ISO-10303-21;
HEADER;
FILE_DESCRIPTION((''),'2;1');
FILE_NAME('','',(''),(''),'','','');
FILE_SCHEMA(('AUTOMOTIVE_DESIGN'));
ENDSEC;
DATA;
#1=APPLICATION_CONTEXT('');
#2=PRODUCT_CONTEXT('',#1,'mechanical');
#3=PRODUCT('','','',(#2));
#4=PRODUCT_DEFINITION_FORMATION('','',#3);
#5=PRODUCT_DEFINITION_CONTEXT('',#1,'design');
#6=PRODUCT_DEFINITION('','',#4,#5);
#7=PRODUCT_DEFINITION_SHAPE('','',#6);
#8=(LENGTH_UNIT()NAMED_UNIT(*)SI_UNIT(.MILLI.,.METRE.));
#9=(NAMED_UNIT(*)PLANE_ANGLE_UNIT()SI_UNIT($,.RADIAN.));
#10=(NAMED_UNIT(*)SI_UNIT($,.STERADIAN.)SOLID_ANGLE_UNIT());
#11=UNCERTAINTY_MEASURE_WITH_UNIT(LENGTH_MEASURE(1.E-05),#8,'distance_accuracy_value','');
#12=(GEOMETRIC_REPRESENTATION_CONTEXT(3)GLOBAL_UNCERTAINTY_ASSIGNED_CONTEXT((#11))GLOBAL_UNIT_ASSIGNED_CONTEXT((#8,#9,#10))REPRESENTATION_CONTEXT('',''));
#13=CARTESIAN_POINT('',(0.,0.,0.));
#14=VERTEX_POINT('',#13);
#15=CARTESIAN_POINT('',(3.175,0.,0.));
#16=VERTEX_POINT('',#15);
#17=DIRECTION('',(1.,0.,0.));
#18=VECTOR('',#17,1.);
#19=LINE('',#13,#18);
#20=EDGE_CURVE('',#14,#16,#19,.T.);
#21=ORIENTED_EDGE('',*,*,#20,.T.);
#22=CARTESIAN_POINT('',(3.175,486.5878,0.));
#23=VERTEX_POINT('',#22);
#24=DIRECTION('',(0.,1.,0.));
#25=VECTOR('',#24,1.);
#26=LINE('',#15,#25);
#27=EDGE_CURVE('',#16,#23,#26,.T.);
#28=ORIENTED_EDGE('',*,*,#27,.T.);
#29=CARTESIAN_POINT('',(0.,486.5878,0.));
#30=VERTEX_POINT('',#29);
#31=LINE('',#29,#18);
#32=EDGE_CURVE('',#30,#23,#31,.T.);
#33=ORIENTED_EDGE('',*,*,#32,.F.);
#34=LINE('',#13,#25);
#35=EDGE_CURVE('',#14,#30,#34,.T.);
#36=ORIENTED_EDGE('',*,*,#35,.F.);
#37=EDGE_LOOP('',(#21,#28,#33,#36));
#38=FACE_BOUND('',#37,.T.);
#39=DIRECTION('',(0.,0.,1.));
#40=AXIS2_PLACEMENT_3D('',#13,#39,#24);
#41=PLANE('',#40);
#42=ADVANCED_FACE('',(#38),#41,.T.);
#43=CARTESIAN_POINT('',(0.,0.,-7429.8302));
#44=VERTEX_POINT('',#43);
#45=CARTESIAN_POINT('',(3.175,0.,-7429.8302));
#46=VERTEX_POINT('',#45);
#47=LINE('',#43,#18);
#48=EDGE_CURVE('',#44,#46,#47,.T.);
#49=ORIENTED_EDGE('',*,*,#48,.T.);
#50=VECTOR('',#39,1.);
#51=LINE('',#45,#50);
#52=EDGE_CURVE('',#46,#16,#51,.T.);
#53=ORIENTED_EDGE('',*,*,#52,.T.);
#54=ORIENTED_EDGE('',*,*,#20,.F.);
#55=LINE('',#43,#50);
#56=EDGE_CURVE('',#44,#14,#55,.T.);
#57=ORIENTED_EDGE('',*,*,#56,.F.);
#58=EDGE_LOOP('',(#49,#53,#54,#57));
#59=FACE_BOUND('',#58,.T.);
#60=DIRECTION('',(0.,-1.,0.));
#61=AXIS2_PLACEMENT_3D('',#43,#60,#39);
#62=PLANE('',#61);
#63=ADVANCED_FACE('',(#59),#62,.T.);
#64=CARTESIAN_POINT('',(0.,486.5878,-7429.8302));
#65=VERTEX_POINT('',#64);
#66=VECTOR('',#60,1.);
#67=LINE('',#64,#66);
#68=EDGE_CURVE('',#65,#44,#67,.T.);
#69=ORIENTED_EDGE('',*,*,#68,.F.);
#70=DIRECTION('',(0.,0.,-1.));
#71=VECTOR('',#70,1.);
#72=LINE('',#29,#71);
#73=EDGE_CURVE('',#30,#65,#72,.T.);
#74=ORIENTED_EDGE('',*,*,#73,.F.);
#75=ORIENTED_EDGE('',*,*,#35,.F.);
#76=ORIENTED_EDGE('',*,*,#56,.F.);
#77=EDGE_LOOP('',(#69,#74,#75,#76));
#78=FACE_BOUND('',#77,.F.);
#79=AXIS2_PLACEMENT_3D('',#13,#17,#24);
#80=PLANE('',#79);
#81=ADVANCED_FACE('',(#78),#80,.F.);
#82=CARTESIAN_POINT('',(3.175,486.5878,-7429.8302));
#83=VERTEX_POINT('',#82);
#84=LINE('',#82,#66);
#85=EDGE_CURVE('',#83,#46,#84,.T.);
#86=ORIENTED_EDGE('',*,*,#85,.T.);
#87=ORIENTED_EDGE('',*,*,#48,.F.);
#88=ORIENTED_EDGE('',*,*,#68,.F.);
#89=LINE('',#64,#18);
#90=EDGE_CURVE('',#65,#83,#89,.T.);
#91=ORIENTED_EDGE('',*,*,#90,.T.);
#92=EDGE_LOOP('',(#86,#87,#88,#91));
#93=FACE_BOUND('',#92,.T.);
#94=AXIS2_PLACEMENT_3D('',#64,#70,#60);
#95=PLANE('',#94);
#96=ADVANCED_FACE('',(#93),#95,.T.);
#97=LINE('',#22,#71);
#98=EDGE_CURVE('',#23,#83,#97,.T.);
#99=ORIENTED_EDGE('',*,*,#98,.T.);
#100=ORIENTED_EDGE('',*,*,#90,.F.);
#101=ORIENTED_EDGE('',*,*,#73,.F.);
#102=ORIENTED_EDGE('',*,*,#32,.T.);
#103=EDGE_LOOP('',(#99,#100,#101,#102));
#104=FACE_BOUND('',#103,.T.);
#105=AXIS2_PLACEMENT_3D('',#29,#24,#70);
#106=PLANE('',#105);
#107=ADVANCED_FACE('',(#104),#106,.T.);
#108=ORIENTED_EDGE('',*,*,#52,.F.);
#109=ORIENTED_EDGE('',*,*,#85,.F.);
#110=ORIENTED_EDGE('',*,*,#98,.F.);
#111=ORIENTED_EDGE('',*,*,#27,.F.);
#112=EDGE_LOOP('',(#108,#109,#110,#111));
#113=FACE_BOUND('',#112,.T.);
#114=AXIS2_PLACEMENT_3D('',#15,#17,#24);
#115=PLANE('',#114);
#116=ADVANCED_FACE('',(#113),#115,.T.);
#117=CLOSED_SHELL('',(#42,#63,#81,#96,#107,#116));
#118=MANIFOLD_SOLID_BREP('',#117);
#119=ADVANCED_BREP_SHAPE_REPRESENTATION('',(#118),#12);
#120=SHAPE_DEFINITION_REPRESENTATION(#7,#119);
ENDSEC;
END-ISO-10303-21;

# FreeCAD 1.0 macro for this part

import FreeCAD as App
import Part
import Sketcher
from FreeCAD import Vector
Q = App.Units.Quantity

doc = App.newDocument("Part")
body = doc.addObject("PartDesign::Body", "Body")

# Sketch on YZ plane
sketch1 = body.newObject("Sketcher::SketchObject", "Sketch")
sketch1.AttachmentSupport = (doc.getObject("YZ_Plane"), [""])
sketch1.MapMode = "FlatFace"
sketch1.addGeometry([
    Part.LineSegment(Vector(486.5878, 0, 0), Vector(0, 0, 0)),
    Part.LineSegment(Vector(0, 0, 0), Vector(0, -7429.8302, 0)),
    Part.LineSegment(Vector(0, -7429.8302, 0), Vector(486.5878, -7429.8302, 0)),
    Part.LineSegment(Vector(486.5878, -7429.8302, 0), Vector(486.5878, 0, 0)),
], False)
sketch1.addConstraint([
    Sketcher.Constraint("Coincident", 0, 2, 1, 1),
    Sketcher.Constraint("Coincident", 1, 2, 2, 1),
    Sketcher.Constraint("Coincident", 2, 2, 3, 1),
    Sketcher.Constraint("Coincident", 3, 2, 0, 1),
    Sketcher.Constraint("Horizontal", 0),
    Sketcher.Constraint("Vertical", 1),
    Sketcher.Constraint("Horizontal", 2),
    Sketcher.Constraint("Vertical", 3),
    Sketcher.Constraint("Coincident", 0, 2, -1, 1),
    Sketcher.Constraint("DistanceX", 0, 2, 0, 1, Q("19.157 in")),
    Sketcher.Constraint("DistanceY", 1, 2, 1, 1, Q("292.513 in")),
])
pad1 = body.newObject("PartDesign::Pad", "Pad")
pad1.Profile = sketch1
pad1.Length = Q("0.125 in")

doc.recompute()
